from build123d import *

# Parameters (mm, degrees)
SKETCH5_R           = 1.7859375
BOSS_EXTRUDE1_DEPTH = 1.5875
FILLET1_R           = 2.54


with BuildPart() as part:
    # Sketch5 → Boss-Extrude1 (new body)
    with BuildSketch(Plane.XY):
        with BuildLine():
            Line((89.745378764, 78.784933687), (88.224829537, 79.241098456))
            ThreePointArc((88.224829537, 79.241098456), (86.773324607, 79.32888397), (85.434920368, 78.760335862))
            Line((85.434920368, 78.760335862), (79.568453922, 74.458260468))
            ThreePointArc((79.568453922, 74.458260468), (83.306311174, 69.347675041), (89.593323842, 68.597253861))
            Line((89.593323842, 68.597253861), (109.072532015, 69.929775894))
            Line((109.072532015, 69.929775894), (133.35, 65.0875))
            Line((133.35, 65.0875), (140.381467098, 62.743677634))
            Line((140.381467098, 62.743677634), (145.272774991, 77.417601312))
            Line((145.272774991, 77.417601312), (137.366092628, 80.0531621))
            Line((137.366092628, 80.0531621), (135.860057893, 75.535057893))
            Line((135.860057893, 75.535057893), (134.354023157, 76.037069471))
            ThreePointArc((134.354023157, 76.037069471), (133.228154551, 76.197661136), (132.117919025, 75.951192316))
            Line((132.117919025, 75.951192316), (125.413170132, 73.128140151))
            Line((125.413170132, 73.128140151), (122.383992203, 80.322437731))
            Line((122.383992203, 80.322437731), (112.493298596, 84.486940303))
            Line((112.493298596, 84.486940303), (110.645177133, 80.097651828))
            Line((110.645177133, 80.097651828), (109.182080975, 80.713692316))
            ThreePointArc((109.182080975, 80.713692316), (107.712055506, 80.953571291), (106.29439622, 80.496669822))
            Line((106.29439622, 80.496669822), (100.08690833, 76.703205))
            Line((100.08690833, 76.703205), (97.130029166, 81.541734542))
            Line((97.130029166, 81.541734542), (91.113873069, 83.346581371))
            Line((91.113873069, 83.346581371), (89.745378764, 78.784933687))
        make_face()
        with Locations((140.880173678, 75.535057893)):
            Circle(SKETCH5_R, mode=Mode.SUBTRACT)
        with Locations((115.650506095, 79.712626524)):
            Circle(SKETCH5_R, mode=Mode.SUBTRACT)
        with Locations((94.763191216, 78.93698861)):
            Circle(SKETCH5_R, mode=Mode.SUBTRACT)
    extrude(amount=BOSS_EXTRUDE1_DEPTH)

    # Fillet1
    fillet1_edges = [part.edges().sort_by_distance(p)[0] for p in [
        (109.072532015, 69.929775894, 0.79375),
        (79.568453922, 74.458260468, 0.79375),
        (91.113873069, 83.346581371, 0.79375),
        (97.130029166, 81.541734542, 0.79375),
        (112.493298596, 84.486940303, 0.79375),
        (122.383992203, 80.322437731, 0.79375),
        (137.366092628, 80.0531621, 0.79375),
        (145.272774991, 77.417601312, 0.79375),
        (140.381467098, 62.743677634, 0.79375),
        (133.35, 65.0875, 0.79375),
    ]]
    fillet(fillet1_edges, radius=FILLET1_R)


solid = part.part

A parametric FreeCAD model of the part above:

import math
import FreeCAD as App
import Part
import Sketcher
Q = App.Units.Quantity


def edges_at(feature, points):
    """Names of the edges that pass closest to the given points."""
    edges = feature.Shape.Edges
    near = lambda p: min(range(len(edges)), key=lambda i: edges[i].distToShape(Part.Vertex(*p))[0])
    return sorted({f"Edge{near(p) + 1}" for p in points})

doc = App.newDocument("Part")
body = doc.addObject("PartDesign::Body", "Body")

# Sketch on XY plane
sketch1 = body.newObject("Sketcher::SketchObject", "Sketch")
sketch1.AttachmentSupport = (doc.getObject("XY_Plane"), [""])
sketch1.MapMode = "FlatFace"
sketch1.addGeometry(Part.LineSegment(App.Vector(89.745379, 78.784934, 0), App.Vector(88.22483, 79.241098, 0)), False)
sketch1.addGeometry(Part.ArcOfCircle(Part.Circle(App.Vector(87.3125, 76.2, 0), App.Vector(0, 0, 1), 3.175), math.radians(73.300756), math.radians(126.253838)), False)
sketch1.addGeometry(Part.LineSegment(App.Vector(85.43492, 78.760336, 0), App.Vector(79.568454, 74.45826, 0)), False)
sketch1.addGeometry(Part.ArcOfCircle(Part.Circle(App.Vector(87.3125, 76.2, 0), App.Vector(0, 0, 1), 7.9375), math.radians(-167.324341), math.radians(-73.300756)), False)
sketch1.addGeometry(Part.LineSegment(App.Vector(89.593324, 68.597254, 0), App.Vector(109.072532, 69.929776, 0)), False)
sketch1.addGeometry(Part.LineSegment(App.Vector(109.072532, 69.929776, 0), App.Vector(133.35, 65.0875, 0)), False)
sketch1.addGeometry(Part.LineSegment(App.Vector(133.35, 65.0875, 0), App.Vector(140.381467, 62.743678, 0)), False)
sketch1.addGeometry(Part.LineSegment(App.Vector(140.381467, 62.743678, 0), App.Vector(145.272775, 77.417601, 0)), False)
sketch1.addGeometry(Part.LineSegment(App.Vector(145.272775, 77.417601, 0), App.Vector(137.366093, 80.053162, 0)), False)
sketch1.addGeometry(Part.LineSegment(App.Vector(137.366093, 80.053162, 0), App.Vector(135.860058, 75.535058, 0)), False)
sketch1.addGeometry(Part.LineSegment(App.Vector(135.860058, 75.535058, 0), App.Vector(134.354023, 76.037069, 0)), False)
sketch1.addGeometry(Part.ArcOfCircle(Part.Circle(App.Vector(133.35, 73.025, 0), App.Vector(0, 0, 1), 3.175), math.radians(71.565051), math.radians(112.833654)), False)
sketch1.addGeometry(Part.LineSegment(App.Vector(132.117919, 75.951192, 0), App.Vector(125.41317, 73.12814, 0)), False)
sketch1.addGeometry(Part.LineSegment(App.Vector(125.41317, 73.12814, 0), App.Vector(122.383992, 80.322438, 0)), False)
sketch1.addGeometry(Part.LineSegment(App.Vector(122.383992, 80.322438, 0), App.Vector(112.493299, 84.48694, 0)), False)
sketch1.addGeometry(Part.LineSegment(App.Vector(112.493299, 84.48694, 0), App.Vector(110.645177, 80.097652, 0)), False)
sketch1.addGeometry(Part.LineSegment(App.Vector(110.645177, 80.097652, 0), App.Vector(109.182081, 80.713692, 0)), False)
sketch1.addGeometry(Part.ArcOfCircle(Part.Circle(App.Vector(107.95, 77.7875, 0), App.Vector(0, 0, 1), 3.175), math.radians(67.166346), math.radians(121.429566)), False)
sketch1.addGeometry(Part.LineSegment(App.Vector(106.294396, 80.49667, 0), App.Vector(100.086908, 76.703205, 0)), False)
sketch1.addGeometry(Part.LineSegment(App.Vector(100.086908, 76.703205, 0), App.Vector(97.130029, 81.541735, 0)), False)
sketch1.addGeometry(Part.LineSegment(App.Vector(97.130029, 81.541735, 0), App.Vector(91.113873, 83.346581, 0)), False)
sketch1.addGeometry(Part.LineSegment(App.Vector(91.113873, 83.346581, 0), App.Vector(89.745379, 78.784934, 0)), False)
sketch1.addGeometry(Part.Circle(App.Vector(140.880174, 75.535058, 0), App.Vector(0, 0, 1), 1.785937), False)
sketch1.addGeometry(Part.Circle(App.Vector(94.763191, 78.936989, 0), App.Vector(0, 0, 1), 1.785937), False)
sketch1.addGeometry(Part.Circle(App.Vector(115.650506, 79.712627, 0), App.Vector(0, 0, 1), 1.785937), False)
sketch1.addConstraint(Sketcher.Constraint("Tangent", 0, 2, 1, 1))
sketch1.addConstraint(Sketcher.Constraint("Tangent", 1, 2, 2, 1))
sketch1.addConstraint(Sketcher.Constraint("Coincident", 2, 2, 3, 1))
sketch1.addConstraint(Sketcher.Constraint("Coincident", 3, 2, 4, 1))
sketch1.addConstraint(Sketcher.Constraint("Coincident", 4, 2, 5, 1))
sketch1.addConstraint(Sketcher.Constraint("Coincident", 5, 2, 6, 1))
sketch1.addConstraint(Sketcher.Constraint("Coincident", 6, 2, 7, 1))
sketch1.addConstraint(Sketcher.Constraint("Coincident", 7, 2, 8, 1))
sketch1.addConstraint(Sketcher.Constraint("Coincident", 8, 2, 9, 1))
sketch1.addConstraint(Sketcher.Constraint("Coincident", 9, 2, 10, 1))
sketch1.addConstraint(Sketcher.Constraint("Tangent", 10, 2, 11, 1))
sketch1.addConstraint(Sketcher.Constraint("Tangent", 11, 2, 12, 1))
sketch1.addConstraint(Sketcher.Constraint("Coincident", 12, 2, 13, 1))
sketch1.addConstraint(Sketcher.Constraint("Coincident", 13, 2, 14, 1))
sketch1.addConstraint(Sketcher.Constraint("Coincident", 14, 2, 15, 1))
sketch1.addConstraint(Sketcher.Constraint("Coincident", 15, 2, 16, 1))
sketch1.addConstraint(Sketcher.Constraint("Tangent", 16, 2, 17, 1))
sketch1.addConstraint(Sketcher.Constraint("Tangent", 17, 2, 18, 1))
sketch1.addConstraint(Sketcher.Constraint("Coincident", 18, 2, 19, 1))
sketch1.addConstraint(Sketcher.Constraint("Coincident", 19, 2, 20, 1))
sketch1.addConstraint(Sketcher.Constraint("Coincident", 20, 2, 21, 1))
sketch1.addConstraint(Sketcher.Constraint("Coincident", 21, 2, 0, 1))
sketch1.addConstraint(Sketcher.Constraint("Coincident", 3, 3, 1, 3))
sketch1.addConstraint(Sketcher.Constraint("Equal", 1, 11))
sketch1.addConstraint(Sketcher.Constraint("Equal", 11, 17))
sketch1.addConstraint(Sketcher.Constraint("Equal", 22, 23))
sketch1.addConstraint(Sketcher.Constraint("Equal", 23, 24))
sketch1.addConstraint(Sketcher.Constraint("Perpendicular", 6, 7))
sketch1.addConstraint(Sketcher.Constraint("Perpendicular", 7, 8))
sketch1.addConstraint(Sketcher.Constraint("Perpendicular", 8, 9))
sketch1.addConstraint(Sketcher.Constraint("Perpendicular", 9, 10))
sketch1.addConstraint(Sketcher.Constraint("Perpendicular", 12, 13))
sketch1.addConstraint(Sketcher.Constraint("Perpendicular", 14, 15))
sketch1.addConstraint(Sketcher.Constraint("Perpendicular", 15, 16))
sketch1.addConstraint(Sketcher.Constraint("Perpendicular", 18, 19))
sketch1.addConstraint(Sketcher.Constraint("Parallel", 0, 20))
sketch1.addConstraint(Sketcher.Constraint("Perpendicular", 20, 21))
sketch1.addConstraint(Sketcher.Constraint("Horizontal", 22, 3, 9, 2))
sketch1.addConstraint(Sketcher.Constraint("Vertical", 11, 3, 5, 2))
sketch1.addConstraint(Sketcher.Constraint("Equal", 0, 10))
sketch1.addConstraint(Sketcher.Constraint("Equal", 2, 12))
sketch1.addConstraint(Sketcher.Constraint("Equal", 9, 15))
sketch1.addConstraint(Sketcher.Constraint("Equal", 10, 16))
sketch1.addConstraint(Sketcher.Constraint("Equal", 12, 18))
sketch1.addConstraint(Sketcher.Constraint("Equal", 15, 21))
sketch1.addConstraint(Sketcher.Constraint("Diameter", 22, Q("0.140625 in")))
sketch1.addConstraint(Sketcher.Constraint("DistanceY", -1, 1, 1, 3, Q("3 in")))
sketch1.addConstraint(Sketcher.Constraint("Radius", 1, Q("0.125 in")))
sketch1.addConstraint(Sketcher.Constraint("Radius", 3, Q("0.3125 in")))
sketch1.addConstraint(Sketcher.Constraint("DistanceX", 17, 3, 11, 3, Q("1 in")))
sketch1.addConstraint(Sketcher.Constraint("DistanceY", 5, 2, 17, 3, Q("0.5 in")))
sketch1.addConstraint(Sketcher.Constraint("DistanceX", -1, 1, 11, 3, Q("5.25 in")))
sketch1.addConstraint(Sketcher.Constraint("Distance", 0, Q("0.0625 in")))
sketch1.addConstraint(Sketcher.Constraint("Distance", 8, Q("0.328125 in")))
sketch1.addConstraint(Sketcher.Constraint("Distance", 9, Q("0.1875 in")))
sketch1.addConstraint(Sketcher.Constraint("DistanceX", -1, 1, 1, 3, Q("3.4375 in")))
sketch1.addConstraint(Sketcher.Constraint("DistanceY", -1, 1, 11, 3, Q("2.875 in")))
sketch1.addConstraint(Sketcher.Constraint("DistanceY", -1, 1, 17, 3, Q("3.0625 in")))
sketch1.addConstraint(Sketcher.Constraint("DistanceY", -1, 1, 0, 2, Q("79.241098 mm")))
sketch1.addConstraint(Sketcher.Constraint("DistanceY", -1, 1, 7, 2, Q("77.417601 mm")))
sketch1.addConstraint(Sketcher.Constraint("DistanceX", -1, 1, 14, 2, Q("112.493299 mm")))
sketch1.addConstraint(Sketcher.Constraint("DistanceY", 6, 2, 4, 2, Q("7.186098 mm")))
sketch1.addConstraint(Sketcher.Constraint("DistanceX", 22, 3, 7, 2, Q("4.392601 mm")))
sketch1.addConstraint(Sketcher.Constraint("DistanceY", 12, 2, 14, 2, Q("11.3588 mm")))
sketch1.addConstraint(Sketcher.Constraint("DistanceX", 0, 2, 19, 2, Q("8.9052 mm")))
sketch1.addConstraint(Sketcher.Constraint("DistanceX", -1, 1, 23, 3, Q("94.763191 mm")))
sketch1.addConstraint(Sketcher.Constraint("DistanceY", -1, 1, 23, 3, Q("78.936989 mm")))
sketch1.addConstraint(Sketcher.Constraint("DistanceX", -1, 1, 1, 2, Q("85.43492 mm")))
sketch1.addConstraint(Sketcher.Constraint("DistanceY", 22, 3, 24, 3, Q("4.177569 mm")))
sketch1.addConstraint(Sketcher.Constraint("DistanceX", 23, 3, 4, 2, Q("14.309341 mm")))
sketch1.addConstraint(Sketcher.Constraint("DistanceX", 3, 2, 4, 2, Q("19.479208 mm")))
sketch1.addConstraint(Sketcher.Constraint("DistanceX", 24, 3, 6, 2, Q("24.730961 mm")))
pad1 = body.newObject("PartDesign::Pad", "Pad")
pad1.Profile = sketch1
pad1.Length = Q("0.0625 in")
doc.recompute()

fillet = body.newObject("PartDesign::Fillet", "Fillet")
fillet.Base = (pad1, edges_at(pad1, [
    (109.073, 69.93, 0.794),
    (79.568, 74.458, 0.794),
    (91.114, 83.347, 0.794),
    (97.13, 81.542, 0.794),
    (112.493, 84.487, 0.794),
    (122.384, 80.322, 0.794),
    (137.366, 80.053, 0.794),
    (145.273, 77.418, 0.794),
    (140.381, 62.744, 0.794),
    (133.35, 65.088, 0.794),
]))
fillet.Radius = Q("0.1 in")

doc.recompute()
